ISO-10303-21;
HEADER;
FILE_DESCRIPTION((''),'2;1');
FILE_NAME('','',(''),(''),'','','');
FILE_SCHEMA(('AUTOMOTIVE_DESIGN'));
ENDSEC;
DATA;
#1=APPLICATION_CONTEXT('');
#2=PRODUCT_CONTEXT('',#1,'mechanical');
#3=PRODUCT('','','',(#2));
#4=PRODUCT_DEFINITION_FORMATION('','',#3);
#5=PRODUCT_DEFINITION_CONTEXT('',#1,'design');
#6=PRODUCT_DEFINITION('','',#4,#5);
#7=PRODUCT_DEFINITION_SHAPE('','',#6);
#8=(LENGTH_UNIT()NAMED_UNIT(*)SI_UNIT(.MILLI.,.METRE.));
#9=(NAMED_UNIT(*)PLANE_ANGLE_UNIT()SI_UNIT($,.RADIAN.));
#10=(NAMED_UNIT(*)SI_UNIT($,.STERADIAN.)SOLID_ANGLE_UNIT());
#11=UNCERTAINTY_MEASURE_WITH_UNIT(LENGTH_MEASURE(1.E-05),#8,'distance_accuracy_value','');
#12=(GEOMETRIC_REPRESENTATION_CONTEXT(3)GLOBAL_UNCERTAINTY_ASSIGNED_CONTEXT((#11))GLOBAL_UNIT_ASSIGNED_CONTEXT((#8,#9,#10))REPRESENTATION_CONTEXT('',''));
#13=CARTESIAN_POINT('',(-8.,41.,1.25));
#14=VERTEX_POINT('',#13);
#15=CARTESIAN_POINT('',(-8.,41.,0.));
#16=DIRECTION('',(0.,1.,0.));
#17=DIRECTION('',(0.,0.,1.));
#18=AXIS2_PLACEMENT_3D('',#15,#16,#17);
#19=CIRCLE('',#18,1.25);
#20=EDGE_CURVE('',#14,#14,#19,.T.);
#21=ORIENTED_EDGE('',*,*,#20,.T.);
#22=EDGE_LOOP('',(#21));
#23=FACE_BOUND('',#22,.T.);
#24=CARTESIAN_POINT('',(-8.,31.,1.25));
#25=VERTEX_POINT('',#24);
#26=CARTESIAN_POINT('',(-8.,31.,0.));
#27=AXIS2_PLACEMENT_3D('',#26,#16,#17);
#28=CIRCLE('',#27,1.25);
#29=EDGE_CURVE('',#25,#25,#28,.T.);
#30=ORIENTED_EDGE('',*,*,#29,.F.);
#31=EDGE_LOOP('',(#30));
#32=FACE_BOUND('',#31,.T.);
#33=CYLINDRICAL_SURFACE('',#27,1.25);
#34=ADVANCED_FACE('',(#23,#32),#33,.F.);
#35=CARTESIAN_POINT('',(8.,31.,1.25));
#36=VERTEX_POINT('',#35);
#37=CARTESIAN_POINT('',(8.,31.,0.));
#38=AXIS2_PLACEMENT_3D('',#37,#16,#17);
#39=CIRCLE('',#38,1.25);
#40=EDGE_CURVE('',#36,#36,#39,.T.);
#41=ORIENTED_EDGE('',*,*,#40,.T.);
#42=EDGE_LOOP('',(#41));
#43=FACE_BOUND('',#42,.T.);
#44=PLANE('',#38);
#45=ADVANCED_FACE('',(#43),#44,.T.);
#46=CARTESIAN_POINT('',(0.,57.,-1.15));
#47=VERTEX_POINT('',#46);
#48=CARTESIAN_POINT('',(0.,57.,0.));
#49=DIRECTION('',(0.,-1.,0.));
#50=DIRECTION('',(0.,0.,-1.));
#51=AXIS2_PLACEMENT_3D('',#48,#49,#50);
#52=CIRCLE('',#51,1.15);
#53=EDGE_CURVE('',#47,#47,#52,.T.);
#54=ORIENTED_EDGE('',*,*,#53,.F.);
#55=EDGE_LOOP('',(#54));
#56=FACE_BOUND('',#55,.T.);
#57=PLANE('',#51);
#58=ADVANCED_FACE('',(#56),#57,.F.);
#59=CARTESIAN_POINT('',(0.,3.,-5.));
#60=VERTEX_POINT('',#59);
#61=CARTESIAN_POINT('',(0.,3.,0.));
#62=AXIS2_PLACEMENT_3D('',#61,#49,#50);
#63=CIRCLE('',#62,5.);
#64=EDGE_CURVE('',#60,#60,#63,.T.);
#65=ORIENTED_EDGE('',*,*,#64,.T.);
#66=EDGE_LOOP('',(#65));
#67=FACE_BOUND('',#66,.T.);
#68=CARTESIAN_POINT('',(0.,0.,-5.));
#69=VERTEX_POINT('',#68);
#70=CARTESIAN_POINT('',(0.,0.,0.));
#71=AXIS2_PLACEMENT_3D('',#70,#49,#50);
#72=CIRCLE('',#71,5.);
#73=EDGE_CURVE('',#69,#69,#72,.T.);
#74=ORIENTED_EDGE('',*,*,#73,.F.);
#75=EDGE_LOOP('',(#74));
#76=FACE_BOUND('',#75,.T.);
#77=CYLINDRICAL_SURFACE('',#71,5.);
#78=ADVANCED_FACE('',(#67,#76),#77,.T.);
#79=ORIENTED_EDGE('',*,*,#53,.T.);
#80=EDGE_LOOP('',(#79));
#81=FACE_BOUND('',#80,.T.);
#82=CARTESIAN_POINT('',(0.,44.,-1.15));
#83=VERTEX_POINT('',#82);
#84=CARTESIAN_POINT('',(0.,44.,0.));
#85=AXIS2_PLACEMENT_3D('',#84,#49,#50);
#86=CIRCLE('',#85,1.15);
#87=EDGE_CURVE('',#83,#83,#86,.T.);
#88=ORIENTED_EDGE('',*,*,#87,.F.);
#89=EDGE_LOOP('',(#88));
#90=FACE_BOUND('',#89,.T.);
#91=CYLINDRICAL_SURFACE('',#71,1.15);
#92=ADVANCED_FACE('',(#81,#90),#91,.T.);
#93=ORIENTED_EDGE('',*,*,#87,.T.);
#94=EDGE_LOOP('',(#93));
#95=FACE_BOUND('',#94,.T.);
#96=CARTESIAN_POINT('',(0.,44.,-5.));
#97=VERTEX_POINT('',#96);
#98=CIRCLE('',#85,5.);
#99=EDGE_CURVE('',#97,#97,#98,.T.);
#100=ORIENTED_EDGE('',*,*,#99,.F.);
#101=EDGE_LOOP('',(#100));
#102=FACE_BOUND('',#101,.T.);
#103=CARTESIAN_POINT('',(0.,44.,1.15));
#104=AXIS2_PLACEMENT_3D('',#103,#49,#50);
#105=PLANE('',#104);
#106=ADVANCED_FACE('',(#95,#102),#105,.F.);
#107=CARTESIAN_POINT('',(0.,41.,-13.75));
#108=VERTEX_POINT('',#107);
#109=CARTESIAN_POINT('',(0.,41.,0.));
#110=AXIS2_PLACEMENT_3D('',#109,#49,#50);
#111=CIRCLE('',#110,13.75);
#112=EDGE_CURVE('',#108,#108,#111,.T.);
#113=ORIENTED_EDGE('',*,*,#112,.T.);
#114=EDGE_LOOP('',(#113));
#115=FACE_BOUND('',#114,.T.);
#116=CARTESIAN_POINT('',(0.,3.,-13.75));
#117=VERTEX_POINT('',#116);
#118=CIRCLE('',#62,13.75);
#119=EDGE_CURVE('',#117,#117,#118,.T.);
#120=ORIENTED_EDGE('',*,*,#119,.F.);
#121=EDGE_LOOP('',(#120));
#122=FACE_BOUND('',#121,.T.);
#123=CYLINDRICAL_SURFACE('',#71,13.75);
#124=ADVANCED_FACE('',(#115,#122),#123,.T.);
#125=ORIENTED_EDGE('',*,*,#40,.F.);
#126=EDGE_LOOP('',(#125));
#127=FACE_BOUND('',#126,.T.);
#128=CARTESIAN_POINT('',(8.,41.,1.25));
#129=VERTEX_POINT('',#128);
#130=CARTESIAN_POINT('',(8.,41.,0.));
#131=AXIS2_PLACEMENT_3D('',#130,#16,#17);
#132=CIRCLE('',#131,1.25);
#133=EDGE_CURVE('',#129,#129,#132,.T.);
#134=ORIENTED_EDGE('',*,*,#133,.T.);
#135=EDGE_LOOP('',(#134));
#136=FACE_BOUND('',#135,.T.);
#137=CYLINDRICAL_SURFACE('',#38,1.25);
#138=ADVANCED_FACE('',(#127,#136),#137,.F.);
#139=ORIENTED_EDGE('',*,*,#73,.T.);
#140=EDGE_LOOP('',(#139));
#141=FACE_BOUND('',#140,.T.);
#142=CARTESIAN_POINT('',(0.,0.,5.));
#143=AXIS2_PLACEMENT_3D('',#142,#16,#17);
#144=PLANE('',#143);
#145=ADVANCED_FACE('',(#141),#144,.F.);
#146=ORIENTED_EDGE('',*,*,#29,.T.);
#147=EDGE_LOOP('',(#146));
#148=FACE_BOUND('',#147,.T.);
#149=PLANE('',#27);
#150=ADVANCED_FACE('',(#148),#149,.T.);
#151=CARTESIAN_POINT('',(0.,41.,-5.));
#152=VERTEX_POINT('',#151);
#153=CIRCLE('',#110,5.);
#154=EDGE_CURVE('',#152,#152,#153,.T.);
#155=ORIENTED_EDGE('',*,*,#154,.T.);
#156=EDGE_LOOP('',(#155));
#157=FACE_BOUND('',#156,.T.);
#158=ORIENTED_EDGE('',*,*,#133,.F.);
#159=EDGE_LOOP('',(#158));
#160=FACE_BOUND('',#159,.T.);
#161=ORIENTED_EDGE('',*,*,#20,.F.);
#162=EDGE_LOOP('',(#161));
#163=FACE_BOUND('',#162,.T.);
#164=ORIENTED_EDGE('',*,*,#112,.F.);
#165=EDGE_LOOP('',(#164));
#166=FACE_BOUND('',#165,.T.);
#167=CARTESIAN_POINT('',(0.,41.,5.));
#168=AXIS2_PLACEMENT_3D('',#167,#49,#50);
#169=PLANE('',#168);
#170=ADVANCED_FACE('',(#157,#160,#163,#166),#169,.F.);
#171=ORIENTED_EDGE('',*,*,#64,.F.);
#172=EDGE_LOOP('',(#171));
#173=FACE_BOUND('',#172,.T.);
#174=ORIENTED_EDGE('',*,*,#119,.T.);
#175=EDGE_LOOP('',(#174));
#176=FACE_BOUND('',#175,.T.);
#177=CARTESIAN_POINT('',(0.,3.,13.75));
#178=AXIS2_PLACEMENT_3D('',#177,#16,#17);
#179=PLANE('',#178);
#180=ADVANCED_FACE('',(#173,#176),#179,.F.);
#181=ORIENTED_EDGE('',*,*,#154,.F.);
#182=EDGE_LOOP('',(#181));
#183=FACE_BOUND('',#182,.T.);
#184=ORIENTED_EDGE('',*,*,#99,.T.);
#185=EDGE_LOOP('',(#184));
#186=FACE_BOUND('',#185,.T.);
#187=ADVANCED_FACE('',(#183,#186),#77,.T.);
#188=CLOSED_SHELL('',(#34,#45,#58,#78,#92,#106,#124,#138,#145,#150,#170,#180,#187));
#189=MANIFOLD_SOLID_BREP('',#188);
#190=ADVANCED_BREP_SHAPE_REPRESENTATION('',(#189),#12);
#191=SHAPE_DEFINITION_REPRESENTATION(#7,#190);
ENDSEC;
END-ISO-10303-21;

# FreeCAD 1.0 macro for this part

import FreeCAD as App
import Part
import Sketcher
from FreeCAD import Vector
Q = App.Units.Quantity


def add_polygon(sketch, points):
    """Adds a closed chain of lines whose ends are joined by coincident constraints."""
    first, n = sketch.GeometryCount, len(points)
    for a, b in zip(points, points[1:] + points[:1]):
        sketch.addGeometry(Part.LineSegment(App.Vector(*a, 0), App.Vector(*b, 0)), False)
    for i in range(n):
        sketch.addConstraint(Sketcher.Constraint("Coincident", first + i, 2, first + (i + 1) % n, 1))

doc = App.newDocument("Part")
params = doc.addObject("Spreadsheet::Sheet", "Params")
for row, (alias, value) in enumerate([
    ("sketch1_width", "13 mm"),
    ("sketch1_width2", "3 mm"),
    ("sketch1_width3", "38 mm"),
    ("sketch1_height", "5 mm"),
    ("sketch1_height2", "1.15 mm"),
    ("revolution_angle", "360 deg"),
    ("sketch2_diameter", "2.5 mm"),
    ("pocket1_length", "10 mm"),
], start=1):
    params.set(f"A{row}", alias)
    params.set(f"B{row}", "=" + value)
    params.setAlias(f"B{row}", alias)

body = doc.addObject("PartDesign::Body", "Body")

sketch1 = body.newObject("Sketcher::SketchObject", "Sketch")
sketch1.AttachmentSupport = (doc.getObject("YZ_Plane"), [""])
sketch1.MapMode = "FlatFace"
add_polygon(sketch1, [(57, 0), (57, 1.15), (44, 1.15), (44, 5), (41, 5), (41, 13.75), (3, 13.75), (3, 5), (0, 5), (0, 0)])
sketch1.addConstraint([
    Sketcher.Constraint("Vertical", 0),
    Sketcher.Constraint("Horizontal", 1),
    Sketcher.Constraint("Vertical", 2),
    Sketcher.Constraint("Horizontal", 3),
    Sketcher.Constraint("Vertical", 4),
    Sketcher.Constraint("Horizontal", 5),
    Sketcher.Constraint("Vertical", 6),
    Sketcher.Constraint("Horizontal", 7),
    Sketcher.Constraint("Vertical", 8),
    Sketcher.Constraint("Horizontal", 9),
    Sketcher.Constraint("Coincident", 8, 2, -1, 1),
    Sketcher.Constraint("Horizontal", 3, 2, 6, 2),
    Sketcher.Constraint("Equal", 3, 7),
    Sketcher.Constraint("DistanceX", 1, 2, 1, 1, Q("13 mm")),
    Sketcher.Constraint("DistanceX", 3, 2, 3, 1, Q("3 mm")),
    Sketcher.Constraint("DistanceX", 5, 2, 5, 1, Q("38 mm")),
    Sketcher.Constraint("DistanceY", 8, 2, 8, 1, Q("5 mm")),
    Sketcher.Constraint("DistanceY", 0, 1, 0, 2, Q("1.15 mm")),
    Sketcher.Constraint("DistanceY", 4, 1, 4, 2, Q("8.75 mm")),
])
sketch1.setExpression("Constraints[23]", "Params.sketch1_width")
sketch1.setExpression("Constraints[24]", "Params.sketch1_width2")
sketch1.setExpression("Constraints[25]", "Params.sketch1_width3")
sketch1.setExpression("Constraints[26]", "Params.sketch1_height")
sketch1.setExpression("Constraints[27]", "Params.sketch1_height2")
revolution = body.newObject("PartDesign::Revolution", "Revolution")
revolution.Profile = sketch1
revolution.ReferenceAxis = (sketch1, ["H_Axis"])
revolution.setExpression("Angle", "Params.revolution_angle")

sketch2 = body.newObject("Sketcher::SketchObject", "Sketch001")
sketch2.AttachmentSupport = (doc.getObject("XZ_Plane"), [""])
sketch2.MapMode = "FlatFace"
sketch2.AttachmentOffset = App.Placement(Vector(0, 0, -41), App.Rotation())
sketch2.addGeometry([
    Part.Circle(Vector(-8, 0, 0), Vector(0, 0, 1), 1.25),
    Part.Circle(Vector(8, 0, 0), Vector(0, 0, 1), 1.25),
], False)
sketch2.addConstraint([
    Sketcher.Constraint("Equal", 0, 1),
    Sketcher.Constraint("Symmetric", 0, 3, 1, 3, -1, 1),
    Sketcher.Constraint("PointOnObject", 0, 3, -1),
    Sketcher.Constraint("Diameter", 0, Q("2.5 mm")),
    Sketcher.Constraint("DistanceX", 0, 3, -1, 1, Q("8 mm")),
])
sketch2.setExpression("Constraints[3]", "Params.sketch2_diameter")
pocket1 = body.newObject("PartDesign::Pocket", "Pocket")
pocket1.Profile = sketch2
pocket1.setExpression("Length", "Params.pocket1_length")
pocket1.Reversed = True

doc.recompute()
